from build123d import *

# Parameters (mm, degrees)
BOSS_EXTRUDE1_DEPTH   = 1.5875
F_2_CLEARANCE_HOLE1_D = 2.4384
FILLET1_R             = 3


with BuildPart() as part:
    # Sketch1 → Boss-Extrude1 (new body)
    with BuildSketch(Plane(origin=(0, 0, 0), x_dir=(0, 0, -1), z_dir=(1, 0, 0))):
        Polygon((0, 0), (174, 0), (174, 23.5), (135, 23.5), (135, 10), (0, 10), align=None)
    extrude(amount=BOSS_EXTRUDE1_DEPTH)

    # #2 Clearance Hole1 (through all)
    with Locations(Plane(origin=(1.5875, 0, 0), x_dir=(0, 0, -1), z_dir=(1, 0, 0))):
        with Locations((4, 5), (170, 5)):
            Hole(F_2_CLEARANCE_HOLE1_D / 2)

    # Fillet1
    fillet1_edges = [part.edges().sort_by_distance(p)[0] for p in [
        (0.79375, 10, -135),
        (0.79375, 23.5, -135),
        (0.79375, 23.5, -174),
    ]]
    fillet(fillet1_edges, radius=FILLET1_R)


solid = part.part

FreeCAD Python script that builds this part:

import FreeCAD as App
import Part
import Sketcher


def edges_at(feature, points):
    """Names of the edges that pass closest to the given points."""
    edges = feature.Shape.Edges
    near = lambda p: min(range(len(edges)), key=lambda i: edges[i].distToShape(Part.Vertex(*p))[0])
    return sorted({f"Edge{near(p) + 1}" for p in points})

doc = App.newDocument("Part")
body = doc.addObject("PartDesign::Body", "Body")

# Sketch on YZ plane
sketch1 = doc.addObject("Sketcher::SketchObject", "Sketch")
body.addObject(sketch1)
sketch1.AttachmentSupport = (doc.YZ_Plane, [""])
sketch1.MapMode = "FlatFace"
sketch1.addGeometry([
    Part.LineSegment(App.Vector(0, 0, 0), App.Vector(0, -174, 0)),  # 0
    Part.LineSegment(App.Vector(0, -174, 0), App.Vector(23.5, -174, 0)),  # 1
    Part.LineSegment(App.Vector(23.5, -174, 0), App.Vector(23.5, -135, 0)),  # 2
    Part.LineSegment(App.Vector(23.5, -135, 0), App.Vector(10, -135, 0)),  # 3
    Part.LineSegment(App.Vector(10, -135, 0), App.Vector(10, 0, 0)),  # 4
    Part.LineSegment(App.Vector(10, 0, 0), App.Vector(0, 0, 0)),  # 5
], False)
sketch1.addConstraint([
    Sketcher.Constraint("Coincident", 0, 2, 1, 1),
    Sketcher.Constraint("Coincident", 1, 2, 2, 1),
    Sketcher.Constraint("Coincident", 2, 2, 3, 1),
    Sketcher.Constraint("Coincident", 3, 2, 4, 1),
    Sketcher.Constraint("Coincident", 4, 2, 5, 1),
    Sketcher.Constraint("Coincident", 5, 2, 0, 1),
    Sketcher.Constraint("Vertical", 0),
    Sketcher.Constraint("Horizontal", 1),
    Sketcher.Constraint("Vertical", 2),
    Sketcher.Constraint("Horizontal", 3),
    Sketcher.Constraint("Vertical", 4),
    Sketcher.Constraint("Horizontal", 5),
    Sketcher.Constraint("Coincident", 5, 2, -1, 1),
    Sketcher.Constraint("DistanceX", 5, 2, 5, 1, 10.0),
    Sketcher.Constraint("DistanceY", 0, 2, 0, 1, 174.0),
    Sketcher.Constraint("DistanceY", 2, 1, 2, 2, 39.0),
    Sketcher.Constraint("DistanceX", 1, 1, 1, 2, 23.5),
])
pad1 = doc.addObject("PartDesign::Pad", "Pad")
body.addObject(pad1)
pad1.Profile = sketch1
pad1.Length = 1.5875

# Sketch on YZ plane
sketch2 = doc.addObject("Sketcher::SketchObject", "Sketch001")
body.addObject(sketch2)
sketch2.AttachmentSupport = (doc.YZ_Plane, [""])
sketch2.MapMode = "FlatFace"
sketch2.AttachmentOffset = App.Placement(App.Vector(0, 0, 1.5875), App.Rotation())
sketch2.addGeometry([
    Part.Circle(App.Vector(5, -4, 0), App.Vector(0, 0, 1), 1.2192),
    Part.Circle(App.Vector(5, -170, 0), App.Vector(0, 0, 1), 1.2192),
], False)
sketch2.addConstraint([
    Sketcher.Constraint("Equal", 0, 1),
    Sketcher.Constraint("Vertical", 0, 3, 1, 3),
    Sketcher.Constraint("DistanceX", -1, 1, 0, 3, 5.0),
    Sketcher.Constraint("DistanceY", 0, 3, -1, 1, 4.0),
    Sketcher.Constraint("DistanceY", 1, 3, -1, 1, 170.0),
    Sketcher.Constraint("Diameter", 0, 2.4384),
])
doc.recompute()
hole = doc.addObject("PartDesign::Hole", "Hole")
body.addObject(hole)
hole.Profile = sketch2
hole.ThreadType = "None"
hole.Diameter = 2.4384
hole.DepthType = "ThroughAll"
doc.recompute()

fillet = doc.addObject("PartDesign::Fillet", "Fillet")
body.addObject(fillet)
fillet.Base = (hole, edges_at(hole, [(0.794, 10, -135), (0.794, 23.5, -135), (0.794, 23.5, -174)]))
fillet.Radius = 3

doc.recompute()
